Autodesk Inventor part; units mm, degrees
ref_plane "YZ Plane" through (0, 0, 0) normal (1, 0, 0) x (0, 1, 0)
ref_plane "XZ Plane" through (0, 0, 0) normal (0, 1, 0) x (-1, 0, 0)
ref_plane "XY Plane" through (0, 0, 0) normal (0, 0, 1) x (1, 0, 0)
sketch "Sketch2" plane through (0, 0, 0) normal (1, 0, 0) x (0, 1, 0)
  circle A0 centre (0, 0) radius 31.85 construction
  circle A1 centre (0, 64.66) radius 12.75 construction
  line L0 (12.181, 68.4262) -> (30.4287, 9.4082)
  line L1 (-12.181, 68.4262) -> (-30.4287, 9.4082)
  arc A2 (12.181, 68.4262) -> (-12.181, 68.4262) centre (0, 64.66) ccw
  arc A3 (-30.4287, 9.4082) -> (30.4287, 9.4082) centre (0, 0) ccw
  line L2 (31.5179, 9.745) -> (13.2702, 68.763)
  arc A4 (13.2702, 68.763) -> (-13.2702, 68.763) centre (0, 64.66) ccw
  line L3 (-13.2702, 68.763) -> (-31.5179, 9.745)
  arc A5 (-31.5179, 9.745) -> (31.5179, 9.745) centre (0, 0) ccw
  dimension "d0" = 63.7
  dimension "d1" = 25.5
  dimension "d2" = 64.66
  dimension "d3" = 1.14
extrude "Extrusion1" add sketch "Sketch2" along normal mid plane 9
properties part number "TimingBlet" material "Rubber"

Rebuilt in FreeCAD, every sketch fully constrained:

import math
import FreeCAD as App
import Part
import Sketcher

V = App.Vector

doc = App.newDocument("Part")
params = doc.addObject("Spreadsheet::Sheet", "Params")
for row, (alias, value) in enumerate([
    ("sketch1_radius", "12.75 mm"),
    ("sketch1_radius2", "31.85 mm"),
    ("sketch1_radius3", "32.99 mm"),
    ("pad1_length", "9 mm"),
], start=1):
    params.set(f"A{row}", alias)
    params.set(f"B{row}", "=" + value)
    params.setAlias(f"B{row}", alias)

body = doc.addObject("PartDesign::Body", "Body")

# Sketch on YZ plane
sketch1 = body.newObject("Sketcher::SketchObject", "Sketch")
sketch1.AttachmentSupport = (doc.getObject("YZ_Plane"), [""])
sketch1.MapMode = "FlatFace"
sketch1.addGeometry(Part.ArcOfCircle(Part.Circle(V(0, 0, 0), V(0, 0, 1), 33), math.radians(163), math.radians(377)), False)
sketch1.addGeometry(Part.LineSegment(V(32, 10, 0), V(13, 69, 0)), False)
sketch1.addGeometry(Part.ArcOfCircle(Part.Circle(V(0, 65, 0), V(0, 0, 1), 14), math.radians(17), math.radians(163)), False)
sketch1.addGeometry(Part.LineSegment(V(-13, 69, 0), V(-32, 10, 0)), False)
sketch1.addGeometry(Part.ArcOfCircle(Part.Circle(V(0, 65, 0), V(0, 0, 1), 13), math.radians(17), math.radians(163)), False)
sketch1.addGeometry(Part.LineSegment(V(12, 68, 0), V(30, 9, 0)), False)
sketch1.addGeometry(Part.ArcOfCircle(Part.Circle(V(0, 0, 0), V(0, 0, 1), 32), math.radians(163), math.radians(377)), False)
sketch1.addGeometry(Part.LineSegment(V(-30, 9, 0), V(-12, 68, 0)), False)
sketch1.addConstraint(Sketcher.Constraint("Tangent", 0, 2, 1, 1))
sketch1.addConstraint(Sketcher.Constraint("Tangent", 1, 2, 2, 1))
sketch1.addConstraint(Sketcher.Constraint("Tangent", 2, 2, 3, 1))
sketch1.addConstraint(Sketcher.Constraint("Tangent", 3, 2, 0, 1))
sketch1.addConstraint(Sketcher.Constraint("Tangent", 4, 1, 5, 1))
sketch1.addConstraint(Sketcher.Constraint("Tangent", 5, 2, 6, 2))
sketch1.addConstraint(Sketcher.Constraint("Tangent", 6, 1, 7, 1))
sketch1.addConstraint(Sketcher.Constraint("Tangent", 7, 2, 4, 2))
sketch1.addConstraint(Sketcher.Constraint("Coincident", 0, 3, -1, 1))
sketch1.addConstraint(Sketcher.Constraint("Coincident", 6, 3, -1, 1))
sketch1.addConstraint(Sketcher.Constraint("Coincident", 4, 3, 2, 3))
sketch1.addConstraint(Sketcher.Constraint("PointOnObject", 2, 3, -2))
sketch1.addConstraint(Sketcher.Constraint("Parallel", 1, 5))
sketch1.addConstraint(Sketcher.Constraint("Radius", 4, 12.75))
sketch1.addConstraint(Sketcher.Constraint("Radius", 6, 31.85))
sketch1.addConstraint(Sketcher.Constraint("DistanceY", -1, 1, 2, 3, 64.66))
sketch1.addConstraint(Sketcher.Constraint("Radius", 0, 32.99))
sketch1.setExpression("Constraints[13]", "Params.sketch1_radius")
sketch1.setExpression("Constraints[14]", "Params.sketch1_radius2")
sketch1.setExpression("Constraints[16]", "Params.sketch1_radius3")
pad1 = body.newObject("PartDesign::Pad", "Pad")
pad1.Profile = sketch1
pad1.setExpression("Length", "Params.pad1_length")
pad1.Midplane = True

doc.recompute()
